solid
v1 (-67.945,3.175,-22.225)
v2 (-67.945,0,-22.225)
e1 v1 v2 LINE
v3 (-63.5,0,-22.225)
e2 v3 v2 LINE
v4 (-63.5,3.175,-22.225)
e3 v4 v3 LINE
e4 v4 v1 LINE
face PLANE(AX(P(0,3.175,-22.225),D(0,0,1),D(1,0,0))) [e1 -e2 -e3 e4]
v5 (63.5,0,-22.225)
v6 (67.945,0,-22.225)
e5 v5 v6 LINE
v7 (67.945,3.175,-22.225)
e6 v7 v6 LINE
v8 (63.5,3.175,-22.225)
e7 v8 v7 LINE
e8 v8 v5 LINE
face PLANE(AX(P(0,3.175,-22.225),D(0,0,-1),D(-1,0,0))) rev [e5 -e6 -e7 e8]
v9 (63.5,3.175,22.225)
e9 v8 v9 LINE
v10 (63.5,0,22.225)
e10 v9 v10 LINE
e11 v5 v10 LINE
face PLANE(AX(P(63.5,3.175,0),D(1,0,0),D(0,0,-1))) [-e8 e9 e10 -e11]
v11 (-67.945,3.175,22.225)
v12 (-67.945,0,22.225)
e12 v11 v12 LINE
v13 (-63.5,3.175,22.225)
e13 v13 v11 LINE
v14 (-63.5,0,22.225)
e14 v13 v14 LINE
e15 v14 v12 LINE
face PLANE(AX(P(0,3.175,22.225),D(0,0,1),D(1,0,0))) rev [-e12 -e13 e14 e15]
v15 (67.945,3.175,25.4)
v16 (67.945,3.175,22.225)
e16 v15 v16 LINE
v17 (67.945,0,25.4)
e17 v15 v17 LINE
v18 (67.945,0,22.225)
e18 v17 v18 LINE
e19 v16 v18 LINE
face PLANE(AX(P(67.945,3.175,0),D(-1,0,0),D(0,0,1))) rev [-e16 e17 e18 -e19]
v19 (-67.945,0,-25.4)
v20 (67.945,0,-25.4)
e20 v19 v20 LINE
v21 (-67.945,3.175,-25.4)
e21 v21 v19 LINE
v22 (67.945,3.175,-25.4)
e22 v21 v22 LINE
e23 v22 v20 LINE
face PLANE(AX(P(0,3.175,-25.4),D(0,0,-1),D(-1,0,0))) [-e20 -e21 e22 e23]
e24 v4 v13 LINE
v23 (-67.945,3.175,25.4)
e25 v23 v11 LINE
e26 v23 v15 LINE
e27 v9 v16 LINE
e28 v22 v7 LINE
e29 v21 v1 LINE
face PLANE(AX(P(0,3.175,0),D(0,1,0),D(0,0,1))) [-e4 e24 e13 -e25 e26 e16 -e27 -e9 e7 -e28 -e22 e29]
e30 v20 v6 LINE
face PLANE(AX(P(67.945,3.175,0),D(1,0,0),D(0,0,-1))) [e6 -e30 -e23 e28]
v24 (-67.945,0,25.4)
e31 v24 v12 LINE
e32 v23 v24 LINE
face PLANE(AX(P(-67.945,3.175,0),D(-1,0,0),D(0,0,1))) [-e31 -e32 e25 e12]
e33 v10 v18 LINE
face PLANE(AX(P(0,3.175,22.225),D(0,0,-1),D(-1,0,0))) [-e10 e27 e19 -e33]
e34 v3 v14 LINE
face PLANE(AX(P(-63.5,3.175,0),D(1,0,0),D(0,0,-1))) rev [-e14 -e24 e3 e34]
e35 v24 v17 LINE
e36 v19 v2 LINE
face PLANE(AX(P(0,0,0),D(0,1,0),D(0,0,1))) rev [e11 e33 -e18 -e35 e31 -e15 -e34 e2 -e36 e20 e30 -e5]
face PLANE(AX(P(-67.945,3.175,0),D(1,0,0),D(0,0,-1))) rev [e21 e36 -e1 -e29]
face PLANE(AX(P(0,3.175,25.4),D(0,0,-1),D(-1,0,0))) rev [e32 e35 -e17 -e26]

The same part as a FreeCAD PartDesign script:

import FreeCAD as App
import Part
import Sketcher

V = App.Vector
Q = App.Units.Quantity

doc = App.newDocument("Part")
body = doc.addObject("PartDesign::Body", "Body")

sketch1 = doc.addObject("Sketcher::SketchObject", "Sketch")
body.addObject(sketch1)
sketch1.AttachmentSupport = (doc.XZ_Plane, [""])
sketch1.MapMode = "FlatFace"
sketch1.addGeometry(Part.LineSegment(V(-63.5, -22.225, 0), V(-63.5, 22.225, 0)), False)
sketch1.addGeometry(Part.LineSegment(V(-63.5, 22.225, 0), V(-67.945, 22.225, 0)), False)
sketch1.addGeometry(Part.LineSegment(V(-67.945, 22.225, 0), V(-67.945, 25.4, 0)), False)
sketch1.addGeometry(Part.LineSegment(V(-67.945, 25.4, 0), V(67.945, 25.4, 0)), False)
sketch1.addGeometry(Part.LineSegment(V(67.945, 25.4, 0), V(67.945, 22.225, 0)), False)
sketch1.addGeometry(Part.LineSegment(V(67.945, 22.225, 0), V(63.5, 22.225, 0)), False)
sketch1.addGeometry(Part.LineSegment(V(63.5, 22.225, 0), V(63.5, -22.225, 0)), False)
sketch1.addGeometry(Part.LineSegment(V(63.5, -22.225, 0), V(67.945, -22.225, 0)), False)
sketch1.addGeometry(Part.LineSegment(V(67.945, -22.225, 0), V(67.945, -25.4, 0)), False)
sketch1.addGeometry(Part.LineSegment(V(67.945, -25.4, 0), V(-67.945, -25.4, 0)), False)
sketch1.addGeometry(Part.LineSegment(V(-67.945, -25.4, 0), V(-67.945, -22.225, 0)), False)
sketch1.addGeometry(Part.LineSegment(V(-67.945, -22.225, 0), V(-63.5, -22.225, 0)), False)
sketch1.addConstraint(Sketcher.Constraint("Coincident", 0, 2, 1, 1))
sketch1.addConstraint(Sketcher.Constraint("Coincident", 1, 2, 2, 1))
sketch1.addConstraint(Sketcher.Constraint("Coincident", 2, 2, 3, 1))
sketch1.addConstraint(Sketcher.Constraint("Coincident", 3, 2, 4, 1))
sketch1.addConstraint(Sketcher.Constraint("Coincident", 4, 2, 5, 1))
sketch1.addConstraint(Sketcher.Constraint("Coincident", 5, 2, 6, 1))
sketch1.addConstraint(Sketcher.Constraint("Coincident", 6, 2, 7, 1))
sketch1.addConstraint(Sketcher.Constraint("Coincident", 7, 2, 8, 1))
sketch1.addConstraint(Sketcher.Constraint("Coincident", 8, 2, 9, 1))
sketch1.addConstraint(Sketcher.Constraint("Coincident", 9, 2, 10, 1))
sketch1.addConstraint(Sketcher.Constraint("Coincident", 10, 2, 11, 1))
sketch1.addConstraint(Sketcher.Constraint("Coincident", 11, 2, 0, 1))
sketch1.addConstraint(Sketcher.Constraint("Vertical", 0))
sketch1.addConstraint(Sketcher.Constraint("Horizontal", 1))
sketch1.addConstraint(Sketcher.Constraint("Vertical", 2))
sketch1.addConstraint(Sketcher.Constraint("Horizontal", 3))
sketch1.addConstraint(Sketcher.Constraint("Vertical", 4))
sketch1.addConstraint(Sketcher.Constraint("Horizontal", 5))
sketch1.addConstraint(Sketcher.Constraint("Vertical", 6))
sketch1.addConstraint(Sketcher.Constraint("Horizontal", 7))
sketch1.addConstraint(Sketcher.Constraint("Vertical", 8))
sketch1.addConstraint(Sketcher.Constraint("Horizontal", 9))
sketch1.addConstraint(Sketcher.Constraint("Vertical", 10))
sketch1.addConstraint(Sketcher.Constraint("Horizontal", 11))
sketch1.addConstraint(Sketcher.Constraint("Symmetric", 0, 2, 6, 2, -1, 1))
sketch1.addConstraint(Sketcher.Constraint("Symmetric", 2, 2, 8, 2, -1, 1))
sketch1.addConstraint(Sketcher.Constraint("Symmetric", 4, 2, 10, 2, -1, 1))
sketch1.addConstraint(Sketcher.Constraint("Symmetric", 1, 2, 4, 2, -2))
sketch1.addConstraint(Sketcher.Constraint("DistanceY", -1, 1, 2, 2, Q("1 in")))
sketch1.addConstraint(Sketcher.Constraint("DistanceX", 0, 2, 5, 2, Q("5 in")))
sketch1.addConstraint(Sketcher.Constraint("DistanceX", 3, 1, 3, 2, Q("5.35 in")))
sketch1.addConstraint(Sketcher.Constraint("DistanceY", 0, 1, 0, 2, Q("1.75 in")))
pad1 = doc.addObject("PartDesign::Pad", "Pad")
body.addObject(pad1)
pad1.Profile = sketch1
pad1.Length = Q("0.125 in")
pad1.Reversed = True

doc.recompute()
